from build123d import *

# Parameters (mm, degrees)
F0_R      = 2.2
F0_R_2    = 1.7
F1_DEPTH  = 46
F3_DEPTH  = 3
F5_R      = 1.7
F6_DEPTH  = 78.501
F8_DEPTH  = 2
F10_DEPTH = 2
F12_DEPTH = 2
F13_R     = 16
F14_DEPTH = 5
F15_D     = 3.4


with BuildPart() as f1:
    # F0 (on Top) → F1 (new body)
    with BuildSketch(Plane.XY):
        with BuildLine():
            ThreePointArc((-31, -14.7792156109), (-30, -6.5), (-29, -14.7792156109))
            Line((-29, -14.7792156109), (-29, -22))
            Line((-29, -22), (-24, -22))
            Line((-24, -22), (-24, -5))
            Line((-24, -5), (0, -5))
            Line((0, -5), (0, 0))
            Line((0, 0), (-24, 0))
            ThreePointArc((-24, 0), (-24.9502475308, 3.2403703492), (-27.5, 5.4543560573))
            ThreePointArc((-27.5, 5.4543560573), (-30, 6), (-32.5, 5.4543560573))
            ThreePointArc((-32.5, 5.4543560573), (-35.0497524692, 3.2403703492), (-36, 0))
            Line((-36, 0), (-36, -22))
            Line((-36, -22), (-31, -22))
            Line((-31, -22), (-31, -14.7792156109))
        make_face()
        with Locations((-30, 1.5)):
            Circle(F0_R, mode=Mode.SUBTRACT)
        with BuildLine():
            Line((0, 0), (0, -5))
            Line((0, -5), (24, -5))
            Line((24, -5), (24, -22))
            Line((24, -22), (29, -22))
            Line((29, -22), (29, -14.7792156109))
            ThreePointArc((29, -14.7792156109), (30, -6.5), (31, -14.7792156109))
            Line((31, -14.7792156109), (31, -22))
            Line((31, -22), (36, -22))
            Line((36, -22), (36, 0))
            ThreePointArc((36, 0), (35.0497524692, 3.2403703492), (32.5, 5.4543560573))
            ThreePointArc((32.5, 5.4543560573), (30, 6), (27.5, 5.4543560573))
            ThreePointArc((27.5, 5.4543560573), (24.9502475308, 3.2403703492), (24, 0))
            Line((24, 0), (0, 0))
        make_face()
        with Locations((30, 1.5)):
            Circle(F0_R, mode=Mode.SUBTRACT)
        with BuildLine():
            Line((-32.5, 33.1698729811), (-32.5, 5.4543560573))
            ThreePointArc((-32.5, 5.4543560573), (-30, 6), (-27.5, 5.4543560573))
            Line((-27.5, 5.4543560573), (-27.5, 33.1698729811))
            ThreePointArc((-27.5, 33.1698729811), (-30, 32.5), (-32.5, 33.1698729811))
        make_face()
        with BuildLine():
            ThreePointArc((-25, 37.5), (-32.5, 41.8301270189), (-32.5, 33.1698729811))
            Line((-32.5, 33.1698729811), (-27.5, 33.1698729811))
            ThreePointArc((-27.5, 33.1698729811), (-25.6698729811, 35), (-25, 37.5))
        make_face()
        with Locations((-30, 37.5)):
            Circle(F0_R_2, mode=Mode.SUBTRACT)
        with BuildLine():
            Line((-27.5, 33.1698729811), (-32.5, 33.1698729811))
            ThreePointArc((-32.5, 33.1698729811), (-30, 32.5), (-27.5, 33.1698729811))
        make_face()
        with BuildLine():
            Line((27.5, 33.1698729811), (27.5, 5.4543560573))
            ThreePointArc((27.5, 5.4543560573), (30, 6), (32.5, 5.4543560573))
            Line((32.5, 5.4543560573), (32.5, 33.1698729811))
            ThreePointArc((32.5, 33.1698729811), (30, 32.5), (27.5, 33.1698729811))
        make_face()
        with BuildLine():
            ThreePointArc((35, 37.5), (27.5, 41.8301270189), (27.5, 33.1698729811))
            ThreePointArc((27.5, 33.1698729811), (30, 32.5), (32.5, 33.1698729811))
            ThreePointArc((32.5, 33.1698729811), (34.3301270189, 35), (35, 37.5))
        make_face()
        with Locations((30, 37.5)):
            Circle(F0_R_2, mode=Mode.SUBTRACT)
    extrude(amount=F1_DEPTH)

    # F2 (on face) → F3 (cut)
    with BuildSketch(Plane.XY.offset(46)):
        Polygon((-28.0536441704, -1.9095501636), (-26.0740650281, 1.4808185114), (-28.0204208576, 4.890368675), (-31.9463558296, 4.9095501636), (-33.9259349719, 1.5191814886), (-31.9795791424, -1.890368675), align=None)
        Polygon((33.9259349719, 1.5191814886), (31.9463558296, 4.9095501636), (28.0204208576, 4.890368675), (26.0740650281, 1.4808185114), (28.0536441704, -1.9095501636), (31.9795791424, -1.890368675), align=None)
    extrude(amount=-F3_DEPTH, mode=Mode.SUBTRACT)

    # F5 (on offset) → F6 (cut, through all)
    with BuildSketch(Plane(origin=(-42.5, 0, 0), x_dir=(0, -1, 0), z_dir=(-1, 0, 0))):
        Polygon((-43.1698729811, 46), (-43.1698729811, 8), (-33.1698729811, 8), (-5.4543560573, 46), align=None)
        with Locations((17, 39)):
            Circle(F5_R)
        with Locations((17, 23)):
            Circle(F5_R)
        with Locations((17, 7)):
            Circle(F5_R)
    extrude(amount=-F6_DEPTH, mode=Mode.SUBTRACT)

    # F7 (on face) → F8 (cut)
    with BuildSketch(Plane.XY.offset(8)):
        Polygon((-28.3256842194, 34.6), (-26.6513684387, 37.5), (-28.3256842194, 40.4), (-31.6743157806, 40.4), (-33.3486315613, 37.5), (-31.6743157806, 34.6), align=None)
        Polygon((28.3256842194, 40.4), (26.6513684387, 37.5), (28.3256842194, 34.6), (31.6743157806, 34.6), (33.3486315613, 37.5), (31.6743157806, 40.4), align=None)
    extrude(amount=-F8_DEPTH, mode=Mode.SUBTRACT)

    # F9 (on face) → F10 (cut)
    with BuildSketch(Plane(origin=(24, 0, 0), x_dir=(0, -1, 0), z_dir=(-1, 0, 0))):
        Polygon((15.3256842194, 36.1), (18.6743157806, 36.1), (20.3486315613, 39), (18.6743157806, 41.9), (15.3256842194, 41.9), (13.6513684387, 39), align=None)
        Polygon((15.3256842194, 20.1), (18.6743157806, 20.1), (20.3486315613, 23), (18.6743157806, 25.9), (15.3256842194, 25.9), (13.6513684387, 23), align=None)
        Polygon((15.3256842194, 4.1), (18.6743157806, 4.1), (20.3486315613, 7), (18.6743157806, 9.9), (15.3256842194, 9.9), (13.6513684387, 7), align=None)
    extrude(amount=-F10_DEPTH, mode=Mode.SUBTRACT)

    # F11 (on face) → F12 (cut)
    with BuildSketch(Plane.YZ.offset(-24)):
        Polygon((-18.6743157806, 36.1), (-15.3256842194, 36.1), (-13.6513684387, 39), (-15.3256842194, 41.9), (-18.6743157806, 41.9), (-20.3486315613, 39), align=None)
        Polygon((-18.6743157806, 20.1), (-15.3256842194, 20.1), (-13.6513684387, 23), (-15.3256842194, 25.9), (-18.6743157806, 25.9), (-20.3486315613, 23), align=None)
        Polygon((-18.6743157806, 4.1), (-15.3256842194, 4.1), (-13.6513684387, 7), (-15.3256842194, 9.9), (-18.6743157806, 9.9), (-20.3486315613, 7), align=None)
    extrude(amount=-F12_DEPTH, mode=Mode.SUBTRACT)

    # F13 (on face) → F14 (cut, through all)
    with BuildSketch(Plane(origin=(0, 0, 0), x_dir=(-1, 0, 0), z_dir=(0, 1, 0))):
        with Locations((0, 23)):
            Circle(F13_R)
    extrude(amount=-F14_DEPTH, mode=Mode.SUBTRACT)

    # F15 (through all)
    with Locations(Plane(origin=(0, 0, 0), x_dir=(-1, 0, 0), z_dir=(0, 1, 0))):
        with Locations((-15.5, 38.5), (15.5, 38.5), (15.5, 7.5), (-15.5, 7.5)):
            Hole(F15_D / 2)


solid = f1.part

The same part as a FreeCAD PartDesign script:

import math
import FreeCAD as App
import Part
import Sketcher
from FreeCAD import Vector
Q = App.Units.Quantity

doc = App.newDocument("Part")
body = doc.addObject("PartDesign::Body", "Body")

# Sketch on XY plane
sketch1 = doc.addObject("Sketcher::SketchObject", "Sketch")
body.addObject(sketch1)
sketch1.AttachmentSupport = (doc.XY_Plane, [""])
sketch1.MapMode = "FlatFace"
sketch1.addGeometry([
    Part.ArcOfCircle(Part.Circle(Vector(-30, -10.7, 0), Vector(0, 0, 1), 4.2), math.radians(-76.225853), math.radians(256.225853)),  # 0
    Part.LineSegment(Vector(-29, -14.779216, 0), Vector(-29, -22, 0)),  # 1
    Part.LineSegment(Vector(-29, -22, 0), Vector(-24, -22, 0)),  # 2
    Part.LineSegment(Vector(-24, -22, 0), Vector(-24, -5, 0)),  # 3
    Part.LineSegment(Vector(-24, -5, 0), Vector(24, -5, 0)),  # 4
    Part.LineSegment(Vector(24, -5, 0), Vector(24, -22, 0)),  # 5
    Part.LineSegment(Vector(24, -22, 0), Vector(29, -22, 0)),  # 6
    Part.LineSegment(Vector(29, -22, 0), Vector(29, -14.779216, 0)),  # 7
    Part.ArcOfCircle(Part.Circle(Vector(30, -10.7, 0), Vector(0, 0, 1), 4.2), math.radians(-76.225853), math.radians(256.225853)),  # 8
    Part.LineSegment(Vector(31, -14.779216, 0), Vector(31, -22, 0)),  # 9
    Part.LineSegment(Vector(31, -22, 0), Vector(36, -22, 0)),  # 10
    Part.LineSegment(Vector(36, -22, 0), Vector(36, 0, 0)),  # 11
    Part.ArcOfCircle(Part.Circle(Vector(30, 0, 0), Vector(0, 0, 1), 6), math.radians(0), math.radians(65.375682)),  # 12
    Part.LineSegment(Vector(32.5, 5.454356, 0), Vector(32.5, 33.169873, 0)),  # 13
    Part.ArcOfCircle(Part.Circle(Vector(30, 37.5, 0), Vector(0, 0, 1), 5), math.radians(-60), math.radians(0)),  # 14
    Part.ArcOfCircle(Part.Circle(Vector(30, 37.5, 0), Vector(0, 0, 1), 5), math.radians(0), math.radians(240)),  # 15
    Part.LineSegment(Vector(27.5, 33.169873, 0), Vector(27.5, 5.454356, 0)),  # 16
    Part.ArcOfCircle(Part.Circle(Vector(30, 0, 0), Vector(0, 0, 1), 6), math.radians(114.624318), math.radians(180)),  # 17
    Part.LineSegment(Vector(24, 0, 0), Vector(-24, 0, 0)),  # 18
    Part.ArcOfCircle(Part.Circle(Vector(-30, 0, 0), Vector(0, 0, 1), 6), math.radians(0), math.radians(65.375682)),  # 19
    Part.LineSegment(Vector(-27.5, 5.454356, 0), Vector(-27.5, 33.169873, 0)),  # 20
    Part.ArcOfCircle(Part.Circle(Vector(-30, 37.5, 0), Vector(0, 0, 1), 5), math.radians(-60), math.radians(0)),  # 21
    Part.ArcOfCircle(Part.Circle(Vector(-30, 37.5, 0), Vector(0, 0, 1), 5), math.radians(0), math.radians(240)),  # 22
    Part.LineSegment(Vector(-32.5, 33.169873, 0), Vector(-32.5, 5.454356, 0)),  # 23
    Part.ArcOfCircle(Part.Circle(Vector(-30, 0, 0), Vector(0, 0, 1), 6), math.radians(114.624318), math.radians(180)),  # 24
    Part.LineSegment(Vector(-36, 0, 0), Vector(-36, -22, 0)),  # 25
    Part.LineSegment(Vector(-36, -22, 0), Vector(-31, -22, 0)),  # 26
    Part.LineSegment(Vector(-31, -22, 0), Vector(-31, -14.779216, 0)),  # 27
    Part.Circle(Vector(-30, 1.5, 0), Vector(0, 0, 1), 2.2),  # 28
    Part.Circle(Vector(30, 1.5, 0), Vector(0, 0, 1), 2.2),  # 29
    Part.Circle(Vector(-30, 37.5, 0), Vector(0, 0, 1), 1.7),  # 30
    Part.Circle(Vector(30, 37.5, 0), Vector(0, 0, 1), 1.7),  # 31
], False)
sketch1.addConstraint([
    Sketcher.Constraint("Coincident", 0, 1, 1, 1),
    Sketcher.Constraint("Coincident", 1, 2, 2, 1),
    Sketcher.Constraint("Coincident", 2, 2, 3, 1),
    Sketcher.Constraint("Coincident", 3, 2, 4, 1),
    Sketcher.Constraint("Coincident", 4, 2, 5, 1),
    Sketcher.Constraint("Coincident", 5, 2, 6, 1),
    Sketcher.Constraint("Coincident", 6, 2, 7, 1),
    Sketcher.Constraint("Coincident", 7, 2, 8, 2),
    Sketcher.Constraint("Coincident", 8, 1, 9, 1),
    Sketcher.Constraint("Coincident", 9, 2, 10, 1),
    Sketcher.Constraint("Coincident", 10, 2, 11, 1),
    Sketcher.Constraint("Tangent", 11, 2, 12, 1),
    Sketcher.Constraint("Coincident", 12, 2, 13, 1),
    Sketcher.Constraint("Coincident", 13, 2, 14, 1),
    Sketcher.Constraint("Tangent", 14, 2, 15, 1),
    Sketcher.Constraint("Coincident", 15, 2, 16, 1),
    Sketcher.Constraint("Coincident", 16, 2, 17, 1),
    Sketcher.Constraint("Coincident", 17, 2, 18, 1),
    Sketcher.Constraint("Coincident", 18, 2, 19, 1),
    Sketcher.Constraint("Coincident", 19, 2, 20, 1),
    Sketcher.Constraint("Coincident", 20, 2, 21, 1),
    Sketcher.Constraint("Tangent", 21, 2, 22, 1),
    Sketcher.Constraint("Coincident", 22, 2, 23, 1),
    Sketcher.Constraint("Coincident", 23, 2, 24, 1),
    Sketcher.Constraint("Tangent", 24, 2, 25, 1),
    Sketcher.Constraint("Coincident", 25, 2, 26, 1),
    Sketcher.Constraint("Coincident", 26, 2, 27, 1),
    Sketcher.Constraint("Coincident", 27, 2, 0, 2),
    Sketcher.Constraint("Vertical", 1),
    Sketcher.Constraint("Horizontal", 2),
    Sketcher.Constraint("Vertical", 3),
    Sketcher.Constraint("Horizontal", 4),
    Sketcher.Constraint("Vertical", 5),
    Sketcher.Constraint("Horizontal", 6),
    Sketcher.Constraint("Vertical", 7),
    Sketcher.Constraint("Vertical", 9),
    Sketcher.Constraint("Horizontal", 10),
    Sketcher.Constraint("Vertical", 11),
    Sketcher.Constraint("Vertical", 13),
    Sketcher.Constraint("Vertical", 16),
    Sketcher.Constraint("Horizontal", 18),
    Sketcher.Constraint("Vertical", 20),
    Sketcher.Constraint("Vertical", 23),
    Sketcher.Constraint("Vertical", 25),
    Sketcher.Constraint("Horizontal", 26),
    Sketcher.Constraint("Vertical", 27),
    Sketcher.Constraint("Coincident", 17, 3, 12, 3),
    Sketcher.Constraint("Coincident", 24, 3, 19, 3),
    Sketcher.Constraint("Coincident", 30, 3, 21, 3),
    Sketcher.Constraint("Coincident", 31, 3, 14, 3),
    Sketcher.Constraint("Equal", 0, 8),
    Sketcher.Constraint("Equal", 14, 15),
    Sketcher.Constraint("Equal", 12, 17),
    Sketcher.Constraint("Equal", 17, 19),
    Sketcher.Constraint("Equal", 15, 21),
    Sketcher.Constraint("Equal", 21, 22),
    Sketcher.Constraint("Equal", 19, 24),
    Sketcher.Constraint("Equal", 28, 29),
    Sketcher.Constraint("Equal", 30, 31),
    Sketcher.Constraint("Symmetric", 12, 3, 19, 3, -1, 1),
    Sketcher.Constraint("Symmetric", 0, 3, 8, 3, -2),
    Sketcher.Constraint("Symmetric", 14, 3, 21, 3, -2),
    Sketcher.Constraint("Symmetric", 28, 3, 29, 3, -2),
    Sketcher.Constraint("Symmetric", 2, 2, 5, 2, -2),
    Sketcher.Constraint("Symmetric", 16, 2, 19, 2, -2),
    Sketcher.Constraint("Symmetric", 9, 2, 26, 2, -2),
    Sketcher.Constraint("PointOnObject", 17, 2, -1),
    Sketcher.Constraint("Horizontal", 0, 1, 7, 2),
    Sketcher.Constraint("Horizontal", 7, 2, 8, 1),
    Sketcher.Constraint("Horizontal", 6, 2, 9, 2),
    Sketcher.Constraint("Horizontal", 31, 3, 14, 2),
    Sketcher.Constraint("Horizontal", 13, 2, 15, 2),
    Sketcher.Constraint("Horizontal", 12, 2, 16, 2),
    Sketcher.Constraint("Horizontal", 14, 2, 21, 2),
    Sketcher.Constraint("Horizontal", 20, 2, 22, 2),
    Sketcher.Constraint("Vertical", 8, 3, 12, 3),
    Sketcher.Constraint("Vertical", 24, 3, 28, 3),
    Sketcher.Constraint("Vertical", 5, 2, 17, 2),
    Sketcher.Constraint("Radius", 12, 6.0),
    Sketcher.Constraint("Radius", 14, 5.0),
    Sketcher.Constraint("Diameter", 28, 4.4),
    Sketcher.Constraint("Diameter", 30, 3.4),
    Sketcher.Constraint("Radius", 0, 4.2),
    Sketcher.Constraint("DistanceX", 2, 1, 2, 2, 5.0),
    Sketcher.Constraint("DistanceX", 4, 1, 4, 2, 48.0),
    Sketcher.Constraint("DistanceY", 3, 1, 3, 2, 17.0),
    Sketcher.Constraint("DistanceY", 11, 1, 11, 2, 22.0),
    Sketcher.Constraint("DistanceY", 28, 3, 21, 3, 36.0),
    Sketcher.Constraint("DistanceX", 15, 2, 13, 2, 5.0),
    Sketcher.Constraint("DistanceY", 0, 3, -1, 1, 10.7),
    Sketcher.Constraint("DistanceY", -1, 1, 14, 3, 37.5),
])
pad1 = doc.addObject("PartDesign::Pad", "Pad")
body.addObject(pad1)
pad1.Profile = sketch1
pad1.Length = 46

# Sketch on XY plane
sketch2 = doc.addObject("Sketcher::SketchObject", "Sketch001")
body.addObject(sketch2)
sketch2.AttachmentSupport = (doc.XY_Plane, [""])
sketch2.MapMode = "FlatFace"
sketch2.AttachmentOffset = App.Placement(Vector(0, 0, 46), App.Rotation())
sketch2.addGeometry([
    Part.LineSegment(Vector(-28.053644, -1.90955, 0), Vector(-26.074065, 1.480819, 0)),  # 0
    Part.LineSegment(Vector(-26.074065, 1.480819, 0), Vector(-28.020421, 4.890369, 0)),  # 1
    Part.LineSegment(Vector(-28.020421, 4.890369, 0), Vector(-31.946356, 4.90955, 0)),  # 2
    Part.LineSegment(Vector(-31.946356, 4.90955, 0), Vector(-33.925935, 1.519181, 0)),  # 3
    Part.LineSegment(Vector(-33.925935, 1.519181, 0), Vector(-31.979579, -1.890369, 0)),  # 4
    Part.LineSegment(Vector(-31.979579, -1.890369, 0), Vector(-28.053644, -1.90955, 0)),  # 5
    Part.LineSegment(Vector(33.925935, 1.519181, 0), Vector(31.946356, 4.90955, 0)),  # 6
    Part.LineSegment(Vector(31.946356, 4.90955, 0), Vector(28.020421, 4.890369, 0)),  # 7
    Part.LineSegment(Vector(28.020421, 4.890369, 0), Vector(26.074065, 1.480819, 0)),  # 8
    Part.LineSegment(Vector(26.074065, 1.480819, 0), Vector(28.053644, -1.90955, 0)),  # 9
    Part.LineSegment(Vector(28.053644, -1.90955, 0), Vector(31.979579, -1.890369, 0)),  # 10
    Part.LineSegment(Vector(31.979579, -1.890369, 0), Vector(33.925935, 1.519181, 0)),  # 11
], False)
sketch2.addConstraint([
    Sketcher.Constraint("Coincident", 0, 2, 1, 1),
    Sketcher.Constraint("Coincident", 1, 2, 2, 1),
    Sketcher.Constraint("Coincident", 2, 2, 3, 1),
    Sketcher.Constraint("Coincident", 3, 2, 4, 1),
    Sketcher.Constraint("Coincident", 4, 2, 5, 1),
    Sketcher.Constraint("Coincident", 5, 2, 0, 1),
    Sketcher.Constraint("Coincident", 6, 2, 7, 1),
    Sketcher.Constraint("Coincident", 7, 2, 8, 1),
    Sketcher.Constraint("Coincident", 8, 2, 9, 1),
    Sketcher.Constraint("Coincident", 9, 2, 10, 1),
    Sketcher.Constraint("Coincident", 10, 2, 11, 1),
    Sketcher.Constraint("Coincident", 11, 2, 6, 1),
    Sketcher.Constraint("Symmetric", 2, 2, 6, 2, -2),
    Sketcher.Constraint("Symmetric", 1, 2, 7, 2, -2),
    Sketcher.Constraint("Symmetric", 0, 2, 8, 2, -2),
    Sketcher.Constraint("Symmetric", 5, 2, 9, 2, -2),
    Sketcher.Constraint("Symmetric", 4, 2, 10, 2, -2),
    Sketcher.Constraint("Symmetric", 3, 2, 11, 2, -2),
    Sketcher.Constraint("Parallel", 0, 3),
    Sketcher.Constraint("Parallel", 1, 4),
    Sketcher.Constraint("Parallel", 2, 5),
    Sketcher.Constraint("Equal", 0, 1),
    Sketcher.Constraint("Equal", 1, 2),
    Sketcher.Constraint("Equal", 2, 3),
    Sketcher.Constraint("DistanceX", 5, 2, 6, 2, 60.0),
    Sketcher.Constraint("DistanceY", 5, 2, 2, 2, 6.8191),
    Sketcher.Constraint("Distance", 0, 3.925982),
    Sketcher.Constraint("DistanceY", -1, 1, 0, 2, 1.480819),
    Sketcher.Constraint("DistanceX", 1, 2, -1, 1, 28.020421),
    Sketcher.Constraint("DistanceY", -1, 1, 1, 2, 4.890369),
])
pocket1 = doc.addObject("PartDesign::Pocket", "Pocket")
body.addObject(pocket1)
pocket1.Profile = sketch2
pocket1.Length = 3

# Sketch on YZ plane
sketch3 = doc.addObject("Sketcher::SketchObject", "Sketch002")
body.addObject(sketch3)
sketch3.AttachmentSupport = (doc.YZ_Plane, [""])
sketch3.MapMode = "FlatFace"
sketch3.AttachmentOffset = App.Placement(Vector(0, 0, -42.5), App.Rotation())
sketch3.addGeometry([
    Part.LineSegment(Vector(43.169873, 46, 0), Vector(43.169873, 8, 0)),  # 0
    Part.LineSegment(Vector(43.169873, 8, 0), Vector(33.169873, 8, 0)),  # 1
    Part.LineSegment(Vector(33.169873, 8, 0), Vector(5.454356, 46, 0)),  # 2
    Part.LineSegment(Vector(5.454356, 46, 0), Vector(43.169873, 46, 0)),  # 3
    Part.Circle(Vector(-17, 39, 0), Vector(0, 0, 1), 1.7),  # 4
    Part.Circle(Vector(-17, 23, 0), Vector(0, 0, 1), 1.7),  # 5
    Part.Circle(Vector(-17, 7, 0), Vector(0, 0, 1), 1.7),  # 6
], False)
sketch3.addConstraint([
    Sketcher.Constraint("Coincident", 0, 2, 1, 1),
    Sketcher.Constraint("Coincident", 1, 2, 2, 1),
    Sketcher.Constraint("Coincident", 2, 2, 3, 1),
    Sketcher.Constraint("Coincident", 3, 2, 0, 1),
    Sketcher.Constraint("Vertical", 0),
    Sketcher.Constraint("Horizontal", 1),
    Sketcher.Constraint("Horizontal", 3),
    Sketcher.Constraint("Equal", 4, 5),
    Sketcher.Constraint("Equal", 5, 6),
    Sketcher.Constraint("Vertical", 4, 3, 5, 3),
    Sketcher.Constraint("Vertical", 5, 3, 6, 3),
    Sketcher.Constraint("Diameter", 4, 3.4),
    Sketcher.Constraint("DistanceX", 1, 2, 1, 1, 10.0),
    Sketcher.Constraint("DistanceY", 0, 2, 0, 1, 38.0),
    Sketcher.Constraint("DistanceX", 4, 3, -1, 1, 17.0),
    Sketcher.Constraint("DistanceY", -1, 1, 4, 3, 39.0),
    Sketcher.Constraint("DistanceY", -1, 1, 5, 3, 23.0),
    Sketcher.Constraint("DistanceY", -1, 1, 6, 3, 7.0),
    Sketcher.Constraint("DistanceY", -1, 1, 0, 2, 8.0),
    Sketcher.Constraint("DistanceX", 3, 1, 3, 2, 37.715517),
    Sketcher.Constraint("DistanceX", -1, 1, 0, 2, 43.169873),
])
pocket2 = doc.addObject("PartDesign::Pocket", "Pocket001")
body.addObject(pocket2)
pocket2.Profile = sketch3
pocket2.Type = "ThroughAll"
pocket2.Reversed = True

# Sketch on XY plane
sketch4 = doc.addObject("Sketcher::SketchObject", "Sketch003")
body.addObject(sketch4)
sketch4.AttachmentSupport = (doc.XY_Plane, [""])
sketch4.MapMode = "FlatFace"
sketch4.AttachmentOffset = App.Placement(Vector(0, 0, 8), App.Rotation())
sketch4.addGeometry([
    Part.LineSegment(Vector(-28.325684, 34.6, 0), Vector(-26.651368, 37.5, 0)),  # 0
    Part.LineSegment(Vector(-26.651368, 37.5, 0), Vector(-28.325684, 40.4, 0)),  # 1
    Part.LineSegment(Vector(-28.325684, 40.4, 0), Vector(-31.674316, 40.4, 0)),  # 2
    Part.LineSegment(Vector(-31.674316, 40.4, 0), Vector(-33.348632, 37.5, 0)),  # 3
    Part.LineSegment(Vector(-33.348632, 37.5, 0), Vector(-31.674316, 34.6, 0)),  # 4
    Part.LineSegment(Vector(-31.674316, 34.6, 0), Vector(-28.325684, 34.6, 0)),  # 5
    Part.LineSegment(Vector(28.325684, 40.4, 0), Vector(26.651368, 37.5, 0)),  # 6
    Part.LineSegment(Vector(26.651368, 37.5, 0), Vector(28.325684, 34.6, 0)),  # 7
    Part.LineSegment(Vector(28.325684, 34.6, 0), Vector(31.674316, 34.6, 0)),  # 8
    Part.LineSegment(Vector(31.674316, 34.6, 0), Vector(33.348632, 37.5, 0)),  # 9
    Part.LineSegment(Vector(33.348632, 37.5, 0), Vector(31.674316, 40.4, 0)),  # 10
    Part.LineSegment(Vector(31.674316, 40.4, 0), Vector(28.325684, 40.4, 0)),  # 11
], False)
sketch4.addConstraint([
    Sketcher.Constraint("Coincident", 0, 2, 1, 1),
    Sketcher.Constraint("Coincident", 1, 2, 2, 1),
    Sketcher.Constraint("Coincident", 2, 2, 3, 1),
    Sketcher.Constraint("Coincident", 3, 2, 4, 1),
    Sketcher.Constraint("Coincident", 4, 2, 5, 1),
    Sketcher.Constraint("Coincident", 5, 2, 0, 1),
    Sketcher.Constraint("Coincident", 6, 2, 7, 1),
    Sketcher.Constraint("Coincident", 7, 2, 8, 1),
    Sketcher.Constraint("Coincident", 8, 2, 9, 1),
    Sketcher.Constraint("Coincident", 9, 2, 10, 1),
    Sketcher.Constraint("Coincident", 10, 2, 11, 1),
    Sketcher.Constraint("Coincident", 11, 2, 6, 1),
    Sketcher.Constraint("Horizontal", 2),
    Sketcher.Constraint("Horizontal", 5),
    Sketcher.Constraint("Horizontal", 8),
    Sketcher.Constraint("Horizontal", 11),
    Sketcher.Constraint("Symmetric", 0, 2, 6, 2, -2),
    Sketcher.Constraint("Symmetric", 5, 2, 7, 2, -2),
    Sketcher.Constraint("Symmetric", 3, 2, 9, 2, -2),
    Sketcher.Constraint("Symmetric", 2, 2, 10, 2, -2),
    Sketcher.Constraint("Parallel", 0, 3),
    Sketcher.Constraint("Parallel", 1, 4),
    Sketcher.Constraint("Parallel", 3, 6),
    Sketcher.Constraint("Parallel", 4, 7),
    Sketcher.Constraint("Parallel", 6, 9),
    Sketcher.Constraint("Horizontal", 0, 2, 3, 2),
    Sketcher.Constraint("Vertical", 2, 2, 4, 2),
    Sketcher.Constraint("Angle", 0, Q("60 deg")),
    Sketcher.Constraint("DistanceX", 4, 2, 7, 2, 60.0),
    Sketcher.Constraint("DistanceY", -1, 1, 0, 2, 37.5),
    Sketcher.Constraint("DistanceY", -1, 1, 1, 2, 40.4),
    Sketcher.Constraint("DistanceX", 2, 2, 2, 1, 3.348632),
])
pocket3 = doc.addObject("PartDesign::Pocket", "Pocket002")
body.addObject(pocket3)
pocket3.Profile = sketch4
pocket3.Length = 2

# Sketch on YZ plane
sketch5 = doc.addObject("Sketcher::SketchObject", "Sketch004")
body.addObject(sketch5)
sketch5.AttachmentSupport = (doc.YZ_Plane, [""])
sketch5.MapMode = "FlatFace"
sketch5.AttachmentOffset = App.Placement(Vector(0, 0, 24), App.Rotation())
sketch5.addGeometry([
    Part.LineSegment(Vector(-15.325684, 36.1, 0), Vector(-18.674316, 36.1, 0)),  # 0
    Part.LineSegment(Vector(-18.674316, 36.1, 0), Vector(-20.348632, 39, 0)),  # 1
    Part.LineSegment(Vector(-20.348632, 39, 0), Vector(-18.674316, 41.9, 0)),  # 2
    Part.LineSegment(Vector(-18.674316, 41.9, 0), Vector(-15.325684, 41.9, 0)),  # 3
    Part.LineSegment(Vector(-15.325684, 41.9, 0), Vector(-13.651368, 39, 0)),  # 4
    Part.LineSegment(Vector(-13.651368, 39, 0), Vector(-15.325684, 36.1, 0)),  # 5
    Part.LineSegment(Vector(-15.325684, 20.1, 0), Vector(-18.674316, 20.1, 0)),  # 6
    Part.LineSegment(Vector(-18.674316, 20.1, 0), Vector(-20.348632, 23, 0)),  # 7
    Part.LineSegment(Vector(-20.348632, 23, 0), Vector(-18.674316, 25.9, 0)),  # 8
    Part.LineSegment(Vector(-18.674316, 25.9, 0), Vector(-15.325684, 25.9, 0)),  # 9
    Part.LineSegment(Vector(-15.325684, 25.9, 0), Vector(-13.651368, 23, 0)),  # 10
    Part.LineSegment(Vector(-13.651368, 23, 0), Vector(-15.325684, 20.1, 0)),  # 11
    Part.LineSegment(Vector(-15.325684, 4.1, 0), Vector(-18.674316, 4.1, 0)),  # 12
    Part.LineSegment(Vector(-18.674316, 4.1, 0), Vector(-20.348632, 7, 0)),  # 13
    Part.LineSegment(Vector(-20.348632, 7, 0), Vector(-18.674316, 9.9, 0)),  # 14
    Part.LineSegment(Vector(-18.674316, 9.9, 0), Vector(-15.325684, 9.9, 0)),  # 15
    Part.LineSegment(Vector(-15.325684, 9.9, 0), Vector(-13.651368, 7, 0)),  # 16
    Part.LineSegment(Vector(-13.651368, 7, 0), Vector(-15.325684, 4.1, 0)),  # 17
], False)
sketch5.addConstraint([
    Sketcher.Constraint("Coincident", 0, 2, 1, 1),
    Sketcher.Constraint("Coincident", 1, 2, 2, 1),
    Sketcher.Constraint("Coincident", 2, 2, 3, 1),
    Sketcher.Constraint("Coincident", 3, 2, 4, 1),
    Sketcher.Constraint("Coincident", 4, 2, 5, 1),
    Sketcher.Constraint("Coincident", 5, 2, 0, 1),
    Sketcher.Constraint("Coincident", 6, 2, 7, 1),
    Sketcher.Constraint("Coincident", 7, 2, 8, 1),
    Sketcher.Constraint("Coincident", 8, 2, 9, 1),
    Sketcher.Constraint("Coincident", 9, 2, 10, 1),
    Sketcher.Constraint("Coincident", 10, 2, 11, 1),
    Sketcher.Constraint("Coincident", 11, 2, 6, 1),
    Sketcher.Constraint("Coincident", 12, 2, 13, 1),
    Sketcher.Constraint("Coincident", 13, 2, 14, 1),
    Sketcher.Constraint("Coincident", 14, 2, 15, 1),
    Sketcher.Constraint("Coincident", 15, 2, 16, 1),
    Sketcher.Constraint("Coincident", 16, 2, 17, 1),
    Sketcher.Constraint("Coincident", 17, 2, 12, 1),
    Sketcher.Constraint("Horizontal", 0),
    Sketcher.Constraint("Horizontal", 3),
    Sketcher.Constraint("Horizontal", 6),
    Sketcher.Constraint("Horizontal", 9),
    Sketcher.Constraint("Horizontal", 12),
    Sketcher.Constraint("Horizontal", 15),
    Sketcher.Constraint("Parallel", 1, 4),
    Sketcher.Constraint("Parallel", 2, 5),
    Sketcher.Constraint("Parallel", 4, 7),
    Sketcher.Constraint("Parallel", 5, 8),
    Sketcher.Constraint("Parallel", 7, 10),
    Sketcher.Constraint("Parallel", 8, 11),
    Sketcher.Constraint("Parallel", 10, 13),
    Sketcher.Constraint("Parallel", 11, 14),
    Sketcher.Constraint("Parallel", 13, 16),
    Sketcher.Constraint("Parallel", 14, 17),
    Sketcher.Constraint("Horizontal", 1, 2, 4, 2),
    Sketcher.Constraint("Horizontal", 7, 2, 10, 2),
    Sketcher.Constraint("Horizontal", 13, 2, 16, 2),
    Sketcher.Constraint("Vertical", 0, 2, 2, 2),
    Sketcher.Constraint("Vertical", 3, 2, 5, 2),
    Sketcher.Constraint("Vertical", 2, 2, 6, 2),
    Sketcher.Constraint("Vertical", 1, 2, 7, 2),
    Sketcher.Constraint("Vertical", 6, 2, 8, 2),
    Sketcher.Constraint("Vertical", 5, 2, 9, 2),
    Sketcher.Constraint("Vertical", 8, 2, 12, 2),
    Sketcher.Constraint("Vertical", 7, 2, 13, 2),
    Sketcher.Constraint("Vertical", 12, 2, 14, 2),
    Sketcher.Constraint("Vertical", 11, 2, 15, 2),
    Sketcher.Constraint("Angle", 1, Q("120 deg")),
    Sketcher.Constraint("DistanceY", -1, 1, 1, 2, 39.0),
    Sketcher.Constraint("DistanceY", -1, 1, 7, 2, 23.0),
    Sketcher.Constraint("DistanceY", -1, 1, 13, 2, 7.0),
    Sketcher.Constraint("DistanceY", -1, 1, 0, 2, 36.1),
    Sketcher.Constraint("DistanceX", 0, 2, 0, 1, 3.348632),
    Sketcher.Constraint("DistanceX", 1, 2, -1, 1, 20.348632),
])
pocket4 = doc.addObject("PartDesign::Pocket", "Pocket003")
body.addObject(pocket4)
pocket4.Profile = sketch5
pocket4.Length = 2
pocket4.Reversed = True

# Sketch on YZ plane
sketch6 = doc.addObject("Sketcher::SketchObject", "Sketch005")
body.addObject(sketch6)
sketch6.AttachmentSupport = (doc.YZ_Plane, [""])
sketch6.MapMode = "FlatFace"
sketch6.AttachmentOffset = App.Placement(Vector(0, 0, -24), App.Rotation())
sketch6.addGeometry([
    Part.LineSegment(Vector(-18.674316, 36.1, 0), Vector(-15.325684, 36.1, 0)),  # 0
    Part.LineSegment(Vector(-15.325684, 36.1, 0), Vector(-13.651368, 39, 0)),  # 1
    Part.LineSegment(Vector(-13.651368, 39, 0), Vector(-15.325684, 41.9, 0)),  # 2
    Part.LineSegment(Vector(-15.325684, 41.9, 0), Vector(-18.674316, 41.9, 0)),  # 3
    Part.LineSegment(Vector(-18.674316, 41.9, 0), Vector(-20.348632, 39, 0)),  # 4
    Part.LineSegment(Vector(-20.348632, 39, 0), Vector(-18.674316, 36.1, 0)),  # 5
    Part.LineSegment(Vector(-18.674316, 20.1, 0), Vector(-15.325684, 20.1, 0)),  # 6
    Part.LineSegment(Vector(-15.325684, 20.1, 0), Vector(-13.651368, 23, 0)),  # 7
    Part.LineSegment(Vector(-13.651368, 23, 0), Vector(-15.325684, 25.9, 0)),  # 8
    Part.LineSegment(Vector(-15.325684, 25.9, 0), Vector(-18.674316, 25.9, 0)),  # 9
    Part.LineSegment(Vector(-18.674316, 25.9, 0), Vector(-20.348632, 23, 0)),  # 10
    Part.LineSegment(Vector(-20.348632, 23, 0), Vector(-18.674316, 20.1, 0)),  # 11
    Part.LineSegment(Vector(-18.674316, 4.1, 0), Vector(-15.325684, 4.1, 0)),  # 12
    Part.LineSegment(Vector(-15.325684, 4.1, 0), Vector(-13.651368, 7, 0)),  # 13
    Part.LineSegment(Vector(-13.651368, 7, 0), Vector(-15.325684, 9.9, 0)),  # 14
    Part.LineSegment(Vector(-15.325684, 9.9, 0), Vector(-18.674316, 9.9, 0)),  # 15
    Part.LineSegment(Vector(-18.674316, 9.9, 0), Vector(-20.348632, 7, 0)),  # 16
    Part.LineSegment(Vector(-20.348632, 7, 0), Vector(-18.674316, 4.1, 0)),  # 17
], False)
sketch6.addConstraint([
    Sketcher.Constraint("Coincident", 0, 2, 1, 1),
    Sketcher.Constraint("Coincident", 1, 2, 2, 1),
    Sketcher.Constraint("Coincident", 2, 2, 3, 1),
    Sketcher.Constraint("Coincident", 3, 2, 4, 1),
    Sketcher.Constraint("Coincident", 4, 2, 5, 1),
    Sketcher.Constraint("Coincident", 5, 2, 0, 1),
    Sketcher.Constraint("Coincident", 6, 2, 7, 1),
    Sketcher.Constraint("Coincident", 7, 2, 8, 1),
    Sketcher.Constraint("Coincident", 8, 2, 9, 1),
    Sketcher.Constraint("Coincident", 9, 2, 10, 1),
    Sketcher.Constraint("Coincident", 10, 2, 11, 1),
    Sketcher.Constraint("Coincident", 11, 2, 6, 1),
    Sketcher.Constraint("Coincident", 12, 2, 13, 1),
    Sketcher.Constraint("Coincident", 13, 2, 14, 1),
    Sketcher.Constraint("Coincident", 14, 2, 15, 1),
    Sketcher.Constraint("Coincident", 15, 2, 16, 1),
    Sketcher.Constraint("Coincident", 16, 2, 17, 1),
    Sketcher.Constraint("Coincident", 17, 2, 12, 1),
    Sketcher.Constraint("Horizontal", 0),
    Sketcher.Constraint("Horizontal", 3),
    Sketcher.Constraint("Horizontal", 6),
    Sketcher.Constraint("Horizontal", 9),
    Sketcher.Constraint("Horizontal", 12),
    Sketcher.Constraint("Horizontal", 15),
    Sketcher.Constraint("Parallel", 1, 4),
    Sketcher.Constraint("Parallel", 2, 5),
    Sketcher.Constraint("Parallel", 4, 7),
    Sketcher.Constraint("Parallel", 5, 8),
    Sketcher.Constraint("Parallel", 7, 10),
    Sketcher.Constraint("Parallel", 8, 11),
    Sketcher.Constraint("Parallel", 10, 13),
    Sketcher.Constraint("Parallel", 11, 14),
    Sketcher.Constraint("Parallel", 13, 16),
    Sketcher.Constraint("Parallel", 14, 17),
    Sketcher.Constraint("Horizontal", 1, 2, 4, 2),
    Sketcher.Constraint("Horizontal", 7, 2, 10, 2),
    Sketcher.Constraint("Horizontal", 13, 2, 16, 2),
    Sketcher.Constraint("Vertical", 0, 2, 2, 2),
    Sketcher.Constraint("Vertical", 3, 2, 5, 2),
    Sketcher.Constraint("Vertical", 2, 2, 6, 2),
    Sketcher.Constraint("Vertical", 1, 2, 7, 2),
    Sketcher.Constraint("Vertical", 6, 2, 8, 2),
    Sketcher.Constraint("Vertical", 5, 2, 9, 2),
    Sketcher.Constraint("Vertical", 8, 2, 12, 2),
    Sketcher.Constraint("Vertical", 7, 2, 13, 2),
    Sketcher.Constraint("Vertical", 12, 2, 14, 2),
    Sketcher.Constraint("Vertical", 11, 2, 15, 2),
    Sketcher.Constraint("Angle", 1, Q("60 deg")),
    Sketcher.Constraint("DistanceY", -1, 1, 1, 2, 39.0),
    Sketcher.Constraint("DistanceY", -1, 1, 7, 2, 23.0),
    Sketcher.Constraint("DistanceY", -1, 1, 13, 2, 7.0),
    Sketcher.Constraint("DistanceY", -1, 1, 0, 2, 36.1),
    Sketcher.Constraint("DistanceX", 0, 1, 0, 2, 3.348632),
    Sketcher.Constraint("DistanceX", 1, 2, -1, 1, 13.651368),
])
pocket5 = doc.addObject("PartDesign::Pocket", "Pocket004")
body.addObject(pocket5)
pocket5.Profile = sketch6
pocket5.Length = 2

# Sketch on XZ plane
sketch7 = doc.addObject("Sketcher::SketchObject", "Sketch006")
body.addObject(sketch7)
sketch7.AttachmentSupport = (doc.XZ_Plane, [""])
sketch7.MapMode = "FlatFace"
sketch7.addGeometry(Part.Circle(Vector(0, 23, 0), Vector(0, 0, 1), 16), False)
sketch7.addConstraint([
    Sketcher.Constraint("PointOnObject", 0, 3, -2),
    Sketcher.Constraint("Diameter", 0, 32.0),
    Sketcher.Constraint("DistanceY", -1, 1, 0, 3, 23.0),
])
pocket6 = doc.addObject("PartDesign::Pocket", "Pocket005")
body.addObject(pocket6)
pocket6.Profile = sketch7
pocket6.Type = "ThroughAll"
pocket6.Reversed = True

# Sketch on XZ plane
sketch8 = doc.addObject("Sketcher::SketchObject", "Sketch007")
body.addObject(sketch8)
sketch8.AttachmentSupport = (doc.XZ_Plane, [""])
sketch8.MapMode = "FlatFace"
sketch8.addGeometry([
    Part.Circle(Vector(15.5, 38.5, 0), Vector(0, 0, 1), 1.7),
    Part.Circle(Vector(-15.5, 38.5, 0), Vector(0, 0, 1), 1.7),
    Part.Circle(Vector(-15.5, 7.5, 0), Vector(0, 0, 1), 1.7),
    Part.Circle(Vector(15.5, 7.5, 0), Vector(0, 0, 1), 1.7),
], False)
sketch8.addConstraint([
    Sketcher.Constraint("Equal", 0, 1),
    Sketcher.Constraint("Equal", 1, 2),
    Sketcher.Constraint("Equal", 2, 3),
    Sketcher.Constraint("Symmetric", 0, 3, 1, 3, -2),
    Sketcher.Constraint("Symmetric", 2, 3, 3, 3, -2),
    Sketcher.Constraint("Vertical", 1, 3, 2, 3),
    Sketcher.Constraint("Diameter", 0, 3.4),
    Sketcher.Constraint("DistanceX", 1, 3, 0, 3, 31.0),
    Sketcher.Constraint("DistanceY", 2, 3, 1, 3, 31.0),
    Sketcher.Constraint("DistanceY", -1, 1, 0, 3, 38.5),
])
doc.recompute()
hole = doc.addObject("PartDesign::Hole", "Hole")
body.addObject(hole)
hole.Profile = sketch8
hole.ThreadType = "None"
hole.Diameter = 3.4
hole.DepthType = "ThroughAll"
hole.Reversed = True

doc.recompute()
